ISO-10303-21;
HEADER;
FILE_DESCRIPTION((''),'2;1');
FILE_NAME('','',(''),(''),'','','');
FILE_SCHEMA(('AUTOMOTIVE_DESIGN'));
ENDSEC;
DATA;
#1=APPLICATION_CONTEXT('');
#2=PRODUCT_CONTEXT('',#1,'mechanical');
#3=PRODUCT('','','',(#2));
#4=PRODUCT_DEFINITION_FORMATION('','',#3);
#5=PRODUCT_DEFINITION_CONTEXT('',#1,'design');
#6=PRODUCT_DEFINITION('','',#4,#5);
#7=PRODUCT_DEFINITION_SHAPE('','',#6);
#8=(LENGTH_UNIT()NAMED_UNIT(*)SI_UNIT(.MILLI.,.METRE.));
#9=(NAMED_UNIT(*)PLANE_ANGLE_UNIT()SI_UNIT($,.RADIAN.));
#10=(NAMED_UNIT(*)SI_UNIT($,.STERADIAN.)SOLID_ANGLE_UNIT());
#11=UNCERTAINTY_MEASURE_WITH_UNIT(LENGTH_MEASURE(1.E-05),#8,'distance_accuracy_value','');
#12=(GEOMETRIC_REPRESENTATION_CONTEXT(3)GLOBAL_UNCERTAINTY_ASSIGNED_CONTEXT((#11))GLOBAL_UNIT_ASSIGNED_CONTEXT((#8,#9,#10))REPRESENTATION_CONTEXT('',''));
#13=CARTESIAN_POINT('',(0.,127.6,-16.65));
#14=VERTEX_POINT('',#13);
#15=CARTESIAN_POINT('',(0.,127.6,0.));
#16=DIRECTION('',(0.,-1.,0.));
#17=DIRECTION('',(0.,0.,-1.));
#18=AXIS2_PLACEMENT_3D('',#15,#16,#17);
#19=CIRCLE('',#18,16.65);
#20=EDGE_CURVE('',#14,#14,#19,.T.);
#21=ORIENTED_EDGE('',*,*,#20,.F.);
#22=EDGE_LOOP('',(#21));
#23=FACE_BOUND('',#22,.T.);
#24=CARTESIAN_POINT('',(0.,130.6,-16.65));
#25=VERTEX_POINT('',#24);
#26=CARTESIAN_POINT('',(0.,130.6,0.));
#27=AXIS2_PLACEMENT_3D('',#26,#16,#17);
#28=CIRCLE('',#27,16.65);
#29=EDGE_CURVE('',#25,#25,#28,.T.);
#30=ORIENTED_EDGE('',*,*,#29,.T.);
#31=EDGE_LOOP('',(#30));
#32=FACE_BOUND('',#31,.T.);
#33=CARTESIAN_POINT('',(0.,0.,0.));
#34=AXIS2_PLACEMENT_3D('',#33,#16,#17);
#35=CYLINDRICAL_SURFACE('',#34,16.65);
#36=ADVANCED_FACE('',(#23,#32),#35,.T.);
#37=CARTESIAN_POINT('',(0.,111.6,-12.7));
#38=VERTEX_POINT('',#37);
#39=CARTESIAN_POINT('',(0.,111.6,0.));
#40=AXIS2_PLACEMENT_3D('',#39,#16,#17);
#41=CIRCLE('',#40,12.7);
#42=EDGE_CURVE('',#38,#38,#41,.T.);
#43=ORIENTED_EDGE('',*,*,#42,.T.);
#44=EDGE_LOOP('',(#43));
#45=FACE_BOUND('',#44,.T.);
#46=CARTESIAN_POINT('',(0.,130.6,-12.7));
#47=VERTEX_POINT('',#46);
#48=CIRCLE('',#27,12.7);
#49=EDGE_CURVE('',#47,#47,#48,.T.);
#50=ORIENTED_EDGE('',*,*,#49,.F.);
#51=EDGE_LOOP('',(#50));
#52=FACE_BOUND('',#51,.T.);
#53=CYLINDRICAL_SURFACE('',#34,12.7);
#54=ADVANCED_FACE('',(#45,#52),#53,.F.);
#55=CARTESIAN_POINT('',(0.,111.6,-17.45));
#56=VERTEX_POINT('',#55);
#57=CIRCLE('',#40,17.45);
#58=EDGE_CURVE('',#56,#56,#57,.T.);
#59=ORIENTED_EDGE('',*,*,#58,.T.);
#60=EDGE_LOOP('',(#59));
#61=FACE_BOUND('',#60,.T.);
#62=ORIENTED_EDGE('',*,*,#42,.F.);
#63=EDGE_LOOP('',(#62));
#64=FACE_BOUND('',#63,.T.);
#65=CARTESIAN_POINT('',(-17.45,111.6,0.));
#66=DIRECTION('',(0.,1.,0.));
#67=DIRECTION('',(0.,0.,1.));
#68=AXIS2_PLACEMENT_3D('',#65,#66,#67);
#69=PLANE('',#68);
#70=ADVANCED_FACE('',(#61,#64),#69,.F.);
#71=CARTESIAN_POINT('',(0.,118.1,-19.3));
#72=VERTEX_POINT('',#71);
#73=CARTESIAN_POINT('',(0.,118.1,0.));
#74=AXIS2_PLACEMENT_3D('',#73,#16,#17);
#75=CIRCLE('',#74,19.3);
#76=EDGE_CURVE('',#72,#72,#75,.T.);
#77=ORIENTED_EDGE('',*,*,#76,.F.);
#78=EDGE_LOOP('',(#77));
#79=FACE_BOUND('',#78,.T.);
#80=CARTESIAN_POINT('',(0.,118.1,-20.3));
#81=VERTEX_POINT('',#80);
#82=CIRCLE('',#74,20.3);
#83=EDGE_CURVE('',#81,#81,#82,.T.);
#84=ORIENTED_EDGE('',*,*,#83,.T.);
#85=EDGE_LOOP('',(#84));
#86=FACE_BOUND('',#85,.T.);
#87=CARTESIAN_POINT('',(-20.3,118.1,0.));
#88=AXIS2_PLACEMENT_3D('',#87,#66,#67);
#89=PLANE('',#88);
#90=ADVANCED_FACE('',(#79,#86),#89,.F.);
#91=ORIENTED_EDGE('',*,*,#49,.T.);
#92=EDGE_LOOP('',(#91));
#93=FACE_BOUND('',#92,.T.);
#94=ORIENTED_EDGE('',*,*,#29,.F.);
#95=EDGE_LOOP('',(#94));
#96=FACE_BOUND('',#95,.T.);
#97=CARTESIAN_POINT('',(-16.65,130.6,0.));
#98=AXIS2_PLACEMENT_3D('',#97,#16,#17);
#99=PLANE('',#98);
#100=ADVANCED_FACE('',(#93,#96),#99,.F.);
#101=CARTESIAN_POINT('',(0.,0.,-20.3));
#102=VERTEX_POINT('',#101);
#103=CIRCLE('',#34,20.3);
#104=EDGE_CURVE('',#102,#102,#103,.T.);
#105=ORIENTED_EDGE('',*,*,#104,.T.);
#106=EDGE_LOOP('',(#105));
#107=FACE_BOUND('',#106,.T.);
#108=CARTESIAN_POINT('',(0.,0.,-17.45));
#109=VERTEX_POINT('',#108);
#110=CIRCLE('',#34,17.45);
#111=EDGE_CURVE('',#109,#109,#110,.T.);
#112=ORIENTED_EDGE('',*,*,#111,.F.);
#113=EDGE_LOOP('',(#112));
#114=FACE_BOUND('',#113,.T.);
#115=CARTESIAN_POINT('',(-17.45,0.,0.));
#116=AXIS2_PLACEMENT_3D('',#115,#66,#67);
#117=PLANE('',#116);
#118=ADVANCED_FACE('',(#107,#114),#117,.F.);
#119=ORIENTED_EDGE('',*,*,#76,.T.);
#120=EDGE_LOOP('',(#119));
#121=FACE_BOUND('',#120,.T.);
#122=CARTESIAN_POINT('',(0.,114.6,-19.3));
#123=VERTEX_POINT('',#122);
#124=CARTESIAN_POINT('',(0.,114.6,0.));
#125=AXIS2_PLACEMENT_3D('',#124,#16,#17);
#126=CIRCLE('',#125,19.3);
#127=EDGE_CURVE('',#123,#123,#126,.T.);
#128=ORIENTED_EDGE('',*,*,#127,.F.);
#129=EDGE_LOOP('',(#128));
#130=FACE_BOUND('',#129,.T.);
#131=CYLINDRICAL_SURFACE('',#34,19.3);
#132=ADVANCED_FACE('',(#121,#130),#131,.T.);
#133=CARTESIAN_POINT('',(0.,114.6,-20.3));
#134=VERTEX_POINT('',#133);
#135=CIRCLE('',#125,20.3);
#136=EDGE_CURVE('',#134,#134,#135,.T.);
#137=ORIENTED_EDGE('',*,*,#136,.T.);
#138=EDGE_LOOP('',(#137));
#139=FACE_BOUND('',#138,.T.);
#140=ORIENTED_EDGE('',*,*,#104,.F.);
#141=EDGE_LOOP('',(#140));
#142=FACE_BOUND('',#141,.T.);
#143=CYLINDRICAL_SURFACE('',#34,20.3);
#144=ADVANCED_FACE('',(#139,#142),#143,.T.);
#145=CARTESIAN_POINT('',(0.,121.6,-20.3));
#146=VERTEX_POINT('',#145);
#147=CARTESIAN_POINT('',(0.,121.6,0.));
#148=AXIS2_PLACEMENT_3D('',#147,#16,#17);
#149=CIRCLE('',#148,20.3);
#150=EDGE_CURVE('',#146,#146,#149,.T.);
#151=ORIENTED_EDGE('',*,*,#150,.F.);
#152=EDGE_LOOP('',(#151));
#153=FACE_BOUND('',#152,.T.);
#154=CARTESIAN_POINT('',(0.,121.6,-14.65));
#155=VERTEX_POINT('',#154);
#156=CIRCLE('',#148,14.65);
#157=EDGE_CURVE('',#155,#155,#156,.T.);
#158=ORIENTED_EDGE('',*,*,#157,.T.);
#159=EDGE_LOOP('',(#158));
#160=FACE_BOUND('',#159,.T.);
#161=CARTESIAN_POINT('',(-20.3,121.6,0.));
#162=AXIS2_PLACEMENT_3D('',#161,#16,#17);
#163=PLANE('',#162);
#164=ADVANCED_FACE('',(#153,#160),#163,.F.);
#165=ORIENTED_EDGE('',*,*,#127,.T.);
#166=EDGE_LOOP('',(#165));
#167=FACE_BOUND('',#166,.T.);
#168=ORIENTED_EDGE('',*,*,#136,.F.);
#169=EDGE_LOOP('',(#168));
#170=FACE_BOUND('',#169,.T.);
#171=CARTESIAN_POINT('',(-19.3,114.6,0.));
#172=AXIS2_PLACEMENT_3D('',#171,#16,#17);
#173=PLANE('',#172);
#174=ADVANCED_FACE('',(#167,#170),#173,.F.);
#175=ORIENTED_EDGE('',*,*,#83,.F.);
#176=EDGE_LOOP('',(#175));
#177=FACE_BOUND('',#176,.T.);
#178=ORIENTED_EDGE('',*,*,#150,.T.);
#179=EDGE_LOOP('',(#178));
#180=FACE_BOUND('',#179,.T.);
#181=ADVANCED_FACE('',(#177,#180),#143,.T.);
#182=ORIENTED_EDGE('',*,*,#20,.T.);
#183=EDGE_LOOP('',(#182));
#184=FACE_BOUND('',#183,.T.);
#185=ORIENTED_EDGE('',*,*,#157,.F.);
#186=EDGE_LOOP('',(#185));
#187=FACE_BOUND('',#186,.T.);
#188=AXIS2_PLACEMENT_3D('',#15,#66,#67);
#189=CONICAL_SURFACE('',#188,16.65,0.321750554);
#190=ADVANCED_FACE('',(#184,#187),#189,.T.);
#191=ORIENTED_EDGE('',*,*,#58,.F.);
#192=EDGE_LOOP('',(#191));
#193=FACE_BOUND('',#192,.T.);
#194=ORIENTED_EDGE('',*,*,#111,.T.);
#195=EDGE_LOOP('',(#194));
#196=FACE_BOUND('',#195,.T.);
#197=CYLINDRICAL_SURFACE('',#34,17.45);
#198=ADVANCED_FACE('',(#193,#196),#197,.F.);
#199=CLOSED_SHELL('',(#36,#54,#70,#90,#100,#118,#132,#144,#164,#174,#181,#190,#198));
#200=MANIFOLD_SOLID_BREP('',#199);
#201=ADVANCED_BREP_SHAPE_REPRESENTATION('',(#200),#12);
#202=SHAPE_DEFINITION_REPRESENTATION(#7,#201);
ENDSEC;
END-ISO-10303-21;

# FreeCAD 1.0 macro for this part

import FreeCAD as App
import Part
import Sketcher

V = App.Vector

doc = App.newDocument("Part")
params = doc.addObject("Spreadsheet::Sheet", "Params")
for row, (alias, value) in enumerate([
    ("sketch1_width", "1 mm"),
    ("sketch1_height", "19 mm"),
    ("sketch1_height2", "3 mm"),
    ("sketch1_height3", "111.6 mm"),
    ("sketch1_height4", "3.5 mm"),
    ("revolution_angle", "360 deg"),
], start=1):
    params.set(f"A{row}", alias)
    params.set(f"B{row}", "=" + value)
    params.setAlias(f"B{row}", alias)

body = doc.addObject("PartDesign::Body", "Body")

sketch1 = body.newObject("Sketcher::SketchObject", "Sketch")
sketch1.AttachmentSupport = (doc.getObject("XY_Plane"), [""])
sketch1.MapMode = "FlatFace"
sketch1.addGeometry([
    Part.LineSegment(V(-20.3, 0, 0), V(-17.4, 0, 0)),
    Part.LineSegment(V(-17.4, 0, 0), V(-17.4, 111.6, 0)),
    Part.LineSegment(V(-17.4, 111.6, 0), V(-12.7, 111.6, 0)),
    Part.LineSegment(V(-12.7, 111.6, 0), V(-12.7, 130.6, 0)),
    Part.LineSegment(V(-12.7, 130.6, 0), V(-16.6, 130.6, 0)),
    Part.LineSegment(V(-16.6, 130.6, 0), V(-16.6, 127.6, 0)),
    Part.LineSegment(V(-16.6, 127.6, 0), V(-14.7, 121.6, 0)),
    Part.LineSegment(V(-14.7, 121.6, 0), V(-20.3, 121.6, 0)),
    Part.LineSegment(V(-20.3, 121.6, 0), V(-20.3, 118.1, 0)),
    Part.LineSegment(V(-20.3, 118.1, 0), V(-19.3, 118.1, 0)),
    Part.LineSegment(V(-19.3, 118.1, 0), V(-19.3, 114.6, 0)),
    Part.LineSegment(V(-19.3, 114.6, 0), V(-20.3, 114.6, 0)),
    Part.LineSegment(V(-20.3, 114.6, 0), V(-20.3, 0, 0)),
], False)
sketch1.addConstraint([
    Sketcher.Constraint("Coincident", 0, 2, 1, 1),
    Sketcher.Constraint("Coincident", 1, 2, 2, 1),
    Sketcher.Constraint("Coincident", 2, 2, 3, 1),
    Sketcher.Constraint("Coincident", 3, 2, 4, 1),
    Sketcher.Constraint("Coincident", 4, 2, 5, 1),
    Sketcher.Constraint("Coincident", 5, 2, 6, 1),
    Sketcher.Constraint("Coincident", 6, 2, 7, 1),
    Sketcher.Constraint("Coincident", 7, 2, 8, 1),
    Sketcher.Constraint("Coincident", 8, 2, 9, 1),
    Sketcher.Constraint("Coincident", 9, 2, 10, 1),
    Sketcher.Constraint("Coincident", 10, 2, 11, 1),
    Sketcher.Constraint("Coincident", 11, 2, 12, 1),
    Sketcher.Constraint("Coincident", 12, 2, 0, 1),
    Sketcher.Constraint("Horizontal", 0),
    Sketcher.Constraint("Vertical", 1),
    Sketcher.Constraint("Horizontal", 2),
    Sketcher.Constraint("Vertical", 3),
    Sketcher.Constraint("Horizontal", 4),
    Sketcher.Constraint("Vertical", 5),
    Sketcher.Constraint("Horizontal", 7),
    Sketcher.Constraint("Vertical", 8),
    Sketcher.Constraint("Horizontal", 9),
    Sketcher.Constraint("Vertical", 10),
    Sketcher.Constraint("Horizontal", 11),
    Sketcher.Constraint("Vertical", 12),
    Sketcher.Constraint("PointOnObject", 0, 2, -1),
    Sketcher.Constraint("Vertical", 8, 2, 11, 2),
    Sketcher.Constraint("Equal", 8, 10),
    Sketcher.Constraint("DistanceX", 9, 1, 9, 2, 1.0),
    Sketcher.Constraint("DistanceY", 3, 1, 3, 2, 19.0),
    Sketcher.Constraint("DistanceY", 5, 2, 5, 1, 3.0),
    Sketcher.Constraint("DistanceY", 1, 1, 1, 2, 111.6),
    Sketcher.Constraint("DistanceY", 8, 2, 8, 1, 3.5),
    Sketcher.Constraint("DistanceY", 12, 2, 12, 1, 114.6),
    Sketcher.Constraint("DistanceX", 5, 2, 6, 2, 2.0),
    Sketcher.Constraint("DistanceX", 0, 1, 0, 2, 2.85),
    Sketcher.Constraint("DistanceX", 2, 1, 2, 2, 4.75),
    Sketcher.Constraint("DistanceX", 4, 2, 4, 1, 3.95),
    Sketcher.Constraint("DistanceX", 2, 2, -1, 1, 12.7),
])
sketch1.setExpression("Constraints[28]", "Params.sketch1_width")
sketch1.setExpression("Constraints[29]", "Params.sketch1_height")
sketch1.setExpression("Constraints[30]", "Params.sketch1_height2")
sketch1.setExpression("Constraints[31]", "Params.sketch1_height3")
sketch1.setExpression("Constraints[32]", "Params.sketch1_height4")
revolution = body.newObject("PartDesign::Revolution", "Revolution")
revolution.Profile = sketch1
revolution.ReferenceAxis = (sketch1, ["V_Axis"])
revolution.setExpression("Angle", "Params.revolution_angle")

doc.recompute()
